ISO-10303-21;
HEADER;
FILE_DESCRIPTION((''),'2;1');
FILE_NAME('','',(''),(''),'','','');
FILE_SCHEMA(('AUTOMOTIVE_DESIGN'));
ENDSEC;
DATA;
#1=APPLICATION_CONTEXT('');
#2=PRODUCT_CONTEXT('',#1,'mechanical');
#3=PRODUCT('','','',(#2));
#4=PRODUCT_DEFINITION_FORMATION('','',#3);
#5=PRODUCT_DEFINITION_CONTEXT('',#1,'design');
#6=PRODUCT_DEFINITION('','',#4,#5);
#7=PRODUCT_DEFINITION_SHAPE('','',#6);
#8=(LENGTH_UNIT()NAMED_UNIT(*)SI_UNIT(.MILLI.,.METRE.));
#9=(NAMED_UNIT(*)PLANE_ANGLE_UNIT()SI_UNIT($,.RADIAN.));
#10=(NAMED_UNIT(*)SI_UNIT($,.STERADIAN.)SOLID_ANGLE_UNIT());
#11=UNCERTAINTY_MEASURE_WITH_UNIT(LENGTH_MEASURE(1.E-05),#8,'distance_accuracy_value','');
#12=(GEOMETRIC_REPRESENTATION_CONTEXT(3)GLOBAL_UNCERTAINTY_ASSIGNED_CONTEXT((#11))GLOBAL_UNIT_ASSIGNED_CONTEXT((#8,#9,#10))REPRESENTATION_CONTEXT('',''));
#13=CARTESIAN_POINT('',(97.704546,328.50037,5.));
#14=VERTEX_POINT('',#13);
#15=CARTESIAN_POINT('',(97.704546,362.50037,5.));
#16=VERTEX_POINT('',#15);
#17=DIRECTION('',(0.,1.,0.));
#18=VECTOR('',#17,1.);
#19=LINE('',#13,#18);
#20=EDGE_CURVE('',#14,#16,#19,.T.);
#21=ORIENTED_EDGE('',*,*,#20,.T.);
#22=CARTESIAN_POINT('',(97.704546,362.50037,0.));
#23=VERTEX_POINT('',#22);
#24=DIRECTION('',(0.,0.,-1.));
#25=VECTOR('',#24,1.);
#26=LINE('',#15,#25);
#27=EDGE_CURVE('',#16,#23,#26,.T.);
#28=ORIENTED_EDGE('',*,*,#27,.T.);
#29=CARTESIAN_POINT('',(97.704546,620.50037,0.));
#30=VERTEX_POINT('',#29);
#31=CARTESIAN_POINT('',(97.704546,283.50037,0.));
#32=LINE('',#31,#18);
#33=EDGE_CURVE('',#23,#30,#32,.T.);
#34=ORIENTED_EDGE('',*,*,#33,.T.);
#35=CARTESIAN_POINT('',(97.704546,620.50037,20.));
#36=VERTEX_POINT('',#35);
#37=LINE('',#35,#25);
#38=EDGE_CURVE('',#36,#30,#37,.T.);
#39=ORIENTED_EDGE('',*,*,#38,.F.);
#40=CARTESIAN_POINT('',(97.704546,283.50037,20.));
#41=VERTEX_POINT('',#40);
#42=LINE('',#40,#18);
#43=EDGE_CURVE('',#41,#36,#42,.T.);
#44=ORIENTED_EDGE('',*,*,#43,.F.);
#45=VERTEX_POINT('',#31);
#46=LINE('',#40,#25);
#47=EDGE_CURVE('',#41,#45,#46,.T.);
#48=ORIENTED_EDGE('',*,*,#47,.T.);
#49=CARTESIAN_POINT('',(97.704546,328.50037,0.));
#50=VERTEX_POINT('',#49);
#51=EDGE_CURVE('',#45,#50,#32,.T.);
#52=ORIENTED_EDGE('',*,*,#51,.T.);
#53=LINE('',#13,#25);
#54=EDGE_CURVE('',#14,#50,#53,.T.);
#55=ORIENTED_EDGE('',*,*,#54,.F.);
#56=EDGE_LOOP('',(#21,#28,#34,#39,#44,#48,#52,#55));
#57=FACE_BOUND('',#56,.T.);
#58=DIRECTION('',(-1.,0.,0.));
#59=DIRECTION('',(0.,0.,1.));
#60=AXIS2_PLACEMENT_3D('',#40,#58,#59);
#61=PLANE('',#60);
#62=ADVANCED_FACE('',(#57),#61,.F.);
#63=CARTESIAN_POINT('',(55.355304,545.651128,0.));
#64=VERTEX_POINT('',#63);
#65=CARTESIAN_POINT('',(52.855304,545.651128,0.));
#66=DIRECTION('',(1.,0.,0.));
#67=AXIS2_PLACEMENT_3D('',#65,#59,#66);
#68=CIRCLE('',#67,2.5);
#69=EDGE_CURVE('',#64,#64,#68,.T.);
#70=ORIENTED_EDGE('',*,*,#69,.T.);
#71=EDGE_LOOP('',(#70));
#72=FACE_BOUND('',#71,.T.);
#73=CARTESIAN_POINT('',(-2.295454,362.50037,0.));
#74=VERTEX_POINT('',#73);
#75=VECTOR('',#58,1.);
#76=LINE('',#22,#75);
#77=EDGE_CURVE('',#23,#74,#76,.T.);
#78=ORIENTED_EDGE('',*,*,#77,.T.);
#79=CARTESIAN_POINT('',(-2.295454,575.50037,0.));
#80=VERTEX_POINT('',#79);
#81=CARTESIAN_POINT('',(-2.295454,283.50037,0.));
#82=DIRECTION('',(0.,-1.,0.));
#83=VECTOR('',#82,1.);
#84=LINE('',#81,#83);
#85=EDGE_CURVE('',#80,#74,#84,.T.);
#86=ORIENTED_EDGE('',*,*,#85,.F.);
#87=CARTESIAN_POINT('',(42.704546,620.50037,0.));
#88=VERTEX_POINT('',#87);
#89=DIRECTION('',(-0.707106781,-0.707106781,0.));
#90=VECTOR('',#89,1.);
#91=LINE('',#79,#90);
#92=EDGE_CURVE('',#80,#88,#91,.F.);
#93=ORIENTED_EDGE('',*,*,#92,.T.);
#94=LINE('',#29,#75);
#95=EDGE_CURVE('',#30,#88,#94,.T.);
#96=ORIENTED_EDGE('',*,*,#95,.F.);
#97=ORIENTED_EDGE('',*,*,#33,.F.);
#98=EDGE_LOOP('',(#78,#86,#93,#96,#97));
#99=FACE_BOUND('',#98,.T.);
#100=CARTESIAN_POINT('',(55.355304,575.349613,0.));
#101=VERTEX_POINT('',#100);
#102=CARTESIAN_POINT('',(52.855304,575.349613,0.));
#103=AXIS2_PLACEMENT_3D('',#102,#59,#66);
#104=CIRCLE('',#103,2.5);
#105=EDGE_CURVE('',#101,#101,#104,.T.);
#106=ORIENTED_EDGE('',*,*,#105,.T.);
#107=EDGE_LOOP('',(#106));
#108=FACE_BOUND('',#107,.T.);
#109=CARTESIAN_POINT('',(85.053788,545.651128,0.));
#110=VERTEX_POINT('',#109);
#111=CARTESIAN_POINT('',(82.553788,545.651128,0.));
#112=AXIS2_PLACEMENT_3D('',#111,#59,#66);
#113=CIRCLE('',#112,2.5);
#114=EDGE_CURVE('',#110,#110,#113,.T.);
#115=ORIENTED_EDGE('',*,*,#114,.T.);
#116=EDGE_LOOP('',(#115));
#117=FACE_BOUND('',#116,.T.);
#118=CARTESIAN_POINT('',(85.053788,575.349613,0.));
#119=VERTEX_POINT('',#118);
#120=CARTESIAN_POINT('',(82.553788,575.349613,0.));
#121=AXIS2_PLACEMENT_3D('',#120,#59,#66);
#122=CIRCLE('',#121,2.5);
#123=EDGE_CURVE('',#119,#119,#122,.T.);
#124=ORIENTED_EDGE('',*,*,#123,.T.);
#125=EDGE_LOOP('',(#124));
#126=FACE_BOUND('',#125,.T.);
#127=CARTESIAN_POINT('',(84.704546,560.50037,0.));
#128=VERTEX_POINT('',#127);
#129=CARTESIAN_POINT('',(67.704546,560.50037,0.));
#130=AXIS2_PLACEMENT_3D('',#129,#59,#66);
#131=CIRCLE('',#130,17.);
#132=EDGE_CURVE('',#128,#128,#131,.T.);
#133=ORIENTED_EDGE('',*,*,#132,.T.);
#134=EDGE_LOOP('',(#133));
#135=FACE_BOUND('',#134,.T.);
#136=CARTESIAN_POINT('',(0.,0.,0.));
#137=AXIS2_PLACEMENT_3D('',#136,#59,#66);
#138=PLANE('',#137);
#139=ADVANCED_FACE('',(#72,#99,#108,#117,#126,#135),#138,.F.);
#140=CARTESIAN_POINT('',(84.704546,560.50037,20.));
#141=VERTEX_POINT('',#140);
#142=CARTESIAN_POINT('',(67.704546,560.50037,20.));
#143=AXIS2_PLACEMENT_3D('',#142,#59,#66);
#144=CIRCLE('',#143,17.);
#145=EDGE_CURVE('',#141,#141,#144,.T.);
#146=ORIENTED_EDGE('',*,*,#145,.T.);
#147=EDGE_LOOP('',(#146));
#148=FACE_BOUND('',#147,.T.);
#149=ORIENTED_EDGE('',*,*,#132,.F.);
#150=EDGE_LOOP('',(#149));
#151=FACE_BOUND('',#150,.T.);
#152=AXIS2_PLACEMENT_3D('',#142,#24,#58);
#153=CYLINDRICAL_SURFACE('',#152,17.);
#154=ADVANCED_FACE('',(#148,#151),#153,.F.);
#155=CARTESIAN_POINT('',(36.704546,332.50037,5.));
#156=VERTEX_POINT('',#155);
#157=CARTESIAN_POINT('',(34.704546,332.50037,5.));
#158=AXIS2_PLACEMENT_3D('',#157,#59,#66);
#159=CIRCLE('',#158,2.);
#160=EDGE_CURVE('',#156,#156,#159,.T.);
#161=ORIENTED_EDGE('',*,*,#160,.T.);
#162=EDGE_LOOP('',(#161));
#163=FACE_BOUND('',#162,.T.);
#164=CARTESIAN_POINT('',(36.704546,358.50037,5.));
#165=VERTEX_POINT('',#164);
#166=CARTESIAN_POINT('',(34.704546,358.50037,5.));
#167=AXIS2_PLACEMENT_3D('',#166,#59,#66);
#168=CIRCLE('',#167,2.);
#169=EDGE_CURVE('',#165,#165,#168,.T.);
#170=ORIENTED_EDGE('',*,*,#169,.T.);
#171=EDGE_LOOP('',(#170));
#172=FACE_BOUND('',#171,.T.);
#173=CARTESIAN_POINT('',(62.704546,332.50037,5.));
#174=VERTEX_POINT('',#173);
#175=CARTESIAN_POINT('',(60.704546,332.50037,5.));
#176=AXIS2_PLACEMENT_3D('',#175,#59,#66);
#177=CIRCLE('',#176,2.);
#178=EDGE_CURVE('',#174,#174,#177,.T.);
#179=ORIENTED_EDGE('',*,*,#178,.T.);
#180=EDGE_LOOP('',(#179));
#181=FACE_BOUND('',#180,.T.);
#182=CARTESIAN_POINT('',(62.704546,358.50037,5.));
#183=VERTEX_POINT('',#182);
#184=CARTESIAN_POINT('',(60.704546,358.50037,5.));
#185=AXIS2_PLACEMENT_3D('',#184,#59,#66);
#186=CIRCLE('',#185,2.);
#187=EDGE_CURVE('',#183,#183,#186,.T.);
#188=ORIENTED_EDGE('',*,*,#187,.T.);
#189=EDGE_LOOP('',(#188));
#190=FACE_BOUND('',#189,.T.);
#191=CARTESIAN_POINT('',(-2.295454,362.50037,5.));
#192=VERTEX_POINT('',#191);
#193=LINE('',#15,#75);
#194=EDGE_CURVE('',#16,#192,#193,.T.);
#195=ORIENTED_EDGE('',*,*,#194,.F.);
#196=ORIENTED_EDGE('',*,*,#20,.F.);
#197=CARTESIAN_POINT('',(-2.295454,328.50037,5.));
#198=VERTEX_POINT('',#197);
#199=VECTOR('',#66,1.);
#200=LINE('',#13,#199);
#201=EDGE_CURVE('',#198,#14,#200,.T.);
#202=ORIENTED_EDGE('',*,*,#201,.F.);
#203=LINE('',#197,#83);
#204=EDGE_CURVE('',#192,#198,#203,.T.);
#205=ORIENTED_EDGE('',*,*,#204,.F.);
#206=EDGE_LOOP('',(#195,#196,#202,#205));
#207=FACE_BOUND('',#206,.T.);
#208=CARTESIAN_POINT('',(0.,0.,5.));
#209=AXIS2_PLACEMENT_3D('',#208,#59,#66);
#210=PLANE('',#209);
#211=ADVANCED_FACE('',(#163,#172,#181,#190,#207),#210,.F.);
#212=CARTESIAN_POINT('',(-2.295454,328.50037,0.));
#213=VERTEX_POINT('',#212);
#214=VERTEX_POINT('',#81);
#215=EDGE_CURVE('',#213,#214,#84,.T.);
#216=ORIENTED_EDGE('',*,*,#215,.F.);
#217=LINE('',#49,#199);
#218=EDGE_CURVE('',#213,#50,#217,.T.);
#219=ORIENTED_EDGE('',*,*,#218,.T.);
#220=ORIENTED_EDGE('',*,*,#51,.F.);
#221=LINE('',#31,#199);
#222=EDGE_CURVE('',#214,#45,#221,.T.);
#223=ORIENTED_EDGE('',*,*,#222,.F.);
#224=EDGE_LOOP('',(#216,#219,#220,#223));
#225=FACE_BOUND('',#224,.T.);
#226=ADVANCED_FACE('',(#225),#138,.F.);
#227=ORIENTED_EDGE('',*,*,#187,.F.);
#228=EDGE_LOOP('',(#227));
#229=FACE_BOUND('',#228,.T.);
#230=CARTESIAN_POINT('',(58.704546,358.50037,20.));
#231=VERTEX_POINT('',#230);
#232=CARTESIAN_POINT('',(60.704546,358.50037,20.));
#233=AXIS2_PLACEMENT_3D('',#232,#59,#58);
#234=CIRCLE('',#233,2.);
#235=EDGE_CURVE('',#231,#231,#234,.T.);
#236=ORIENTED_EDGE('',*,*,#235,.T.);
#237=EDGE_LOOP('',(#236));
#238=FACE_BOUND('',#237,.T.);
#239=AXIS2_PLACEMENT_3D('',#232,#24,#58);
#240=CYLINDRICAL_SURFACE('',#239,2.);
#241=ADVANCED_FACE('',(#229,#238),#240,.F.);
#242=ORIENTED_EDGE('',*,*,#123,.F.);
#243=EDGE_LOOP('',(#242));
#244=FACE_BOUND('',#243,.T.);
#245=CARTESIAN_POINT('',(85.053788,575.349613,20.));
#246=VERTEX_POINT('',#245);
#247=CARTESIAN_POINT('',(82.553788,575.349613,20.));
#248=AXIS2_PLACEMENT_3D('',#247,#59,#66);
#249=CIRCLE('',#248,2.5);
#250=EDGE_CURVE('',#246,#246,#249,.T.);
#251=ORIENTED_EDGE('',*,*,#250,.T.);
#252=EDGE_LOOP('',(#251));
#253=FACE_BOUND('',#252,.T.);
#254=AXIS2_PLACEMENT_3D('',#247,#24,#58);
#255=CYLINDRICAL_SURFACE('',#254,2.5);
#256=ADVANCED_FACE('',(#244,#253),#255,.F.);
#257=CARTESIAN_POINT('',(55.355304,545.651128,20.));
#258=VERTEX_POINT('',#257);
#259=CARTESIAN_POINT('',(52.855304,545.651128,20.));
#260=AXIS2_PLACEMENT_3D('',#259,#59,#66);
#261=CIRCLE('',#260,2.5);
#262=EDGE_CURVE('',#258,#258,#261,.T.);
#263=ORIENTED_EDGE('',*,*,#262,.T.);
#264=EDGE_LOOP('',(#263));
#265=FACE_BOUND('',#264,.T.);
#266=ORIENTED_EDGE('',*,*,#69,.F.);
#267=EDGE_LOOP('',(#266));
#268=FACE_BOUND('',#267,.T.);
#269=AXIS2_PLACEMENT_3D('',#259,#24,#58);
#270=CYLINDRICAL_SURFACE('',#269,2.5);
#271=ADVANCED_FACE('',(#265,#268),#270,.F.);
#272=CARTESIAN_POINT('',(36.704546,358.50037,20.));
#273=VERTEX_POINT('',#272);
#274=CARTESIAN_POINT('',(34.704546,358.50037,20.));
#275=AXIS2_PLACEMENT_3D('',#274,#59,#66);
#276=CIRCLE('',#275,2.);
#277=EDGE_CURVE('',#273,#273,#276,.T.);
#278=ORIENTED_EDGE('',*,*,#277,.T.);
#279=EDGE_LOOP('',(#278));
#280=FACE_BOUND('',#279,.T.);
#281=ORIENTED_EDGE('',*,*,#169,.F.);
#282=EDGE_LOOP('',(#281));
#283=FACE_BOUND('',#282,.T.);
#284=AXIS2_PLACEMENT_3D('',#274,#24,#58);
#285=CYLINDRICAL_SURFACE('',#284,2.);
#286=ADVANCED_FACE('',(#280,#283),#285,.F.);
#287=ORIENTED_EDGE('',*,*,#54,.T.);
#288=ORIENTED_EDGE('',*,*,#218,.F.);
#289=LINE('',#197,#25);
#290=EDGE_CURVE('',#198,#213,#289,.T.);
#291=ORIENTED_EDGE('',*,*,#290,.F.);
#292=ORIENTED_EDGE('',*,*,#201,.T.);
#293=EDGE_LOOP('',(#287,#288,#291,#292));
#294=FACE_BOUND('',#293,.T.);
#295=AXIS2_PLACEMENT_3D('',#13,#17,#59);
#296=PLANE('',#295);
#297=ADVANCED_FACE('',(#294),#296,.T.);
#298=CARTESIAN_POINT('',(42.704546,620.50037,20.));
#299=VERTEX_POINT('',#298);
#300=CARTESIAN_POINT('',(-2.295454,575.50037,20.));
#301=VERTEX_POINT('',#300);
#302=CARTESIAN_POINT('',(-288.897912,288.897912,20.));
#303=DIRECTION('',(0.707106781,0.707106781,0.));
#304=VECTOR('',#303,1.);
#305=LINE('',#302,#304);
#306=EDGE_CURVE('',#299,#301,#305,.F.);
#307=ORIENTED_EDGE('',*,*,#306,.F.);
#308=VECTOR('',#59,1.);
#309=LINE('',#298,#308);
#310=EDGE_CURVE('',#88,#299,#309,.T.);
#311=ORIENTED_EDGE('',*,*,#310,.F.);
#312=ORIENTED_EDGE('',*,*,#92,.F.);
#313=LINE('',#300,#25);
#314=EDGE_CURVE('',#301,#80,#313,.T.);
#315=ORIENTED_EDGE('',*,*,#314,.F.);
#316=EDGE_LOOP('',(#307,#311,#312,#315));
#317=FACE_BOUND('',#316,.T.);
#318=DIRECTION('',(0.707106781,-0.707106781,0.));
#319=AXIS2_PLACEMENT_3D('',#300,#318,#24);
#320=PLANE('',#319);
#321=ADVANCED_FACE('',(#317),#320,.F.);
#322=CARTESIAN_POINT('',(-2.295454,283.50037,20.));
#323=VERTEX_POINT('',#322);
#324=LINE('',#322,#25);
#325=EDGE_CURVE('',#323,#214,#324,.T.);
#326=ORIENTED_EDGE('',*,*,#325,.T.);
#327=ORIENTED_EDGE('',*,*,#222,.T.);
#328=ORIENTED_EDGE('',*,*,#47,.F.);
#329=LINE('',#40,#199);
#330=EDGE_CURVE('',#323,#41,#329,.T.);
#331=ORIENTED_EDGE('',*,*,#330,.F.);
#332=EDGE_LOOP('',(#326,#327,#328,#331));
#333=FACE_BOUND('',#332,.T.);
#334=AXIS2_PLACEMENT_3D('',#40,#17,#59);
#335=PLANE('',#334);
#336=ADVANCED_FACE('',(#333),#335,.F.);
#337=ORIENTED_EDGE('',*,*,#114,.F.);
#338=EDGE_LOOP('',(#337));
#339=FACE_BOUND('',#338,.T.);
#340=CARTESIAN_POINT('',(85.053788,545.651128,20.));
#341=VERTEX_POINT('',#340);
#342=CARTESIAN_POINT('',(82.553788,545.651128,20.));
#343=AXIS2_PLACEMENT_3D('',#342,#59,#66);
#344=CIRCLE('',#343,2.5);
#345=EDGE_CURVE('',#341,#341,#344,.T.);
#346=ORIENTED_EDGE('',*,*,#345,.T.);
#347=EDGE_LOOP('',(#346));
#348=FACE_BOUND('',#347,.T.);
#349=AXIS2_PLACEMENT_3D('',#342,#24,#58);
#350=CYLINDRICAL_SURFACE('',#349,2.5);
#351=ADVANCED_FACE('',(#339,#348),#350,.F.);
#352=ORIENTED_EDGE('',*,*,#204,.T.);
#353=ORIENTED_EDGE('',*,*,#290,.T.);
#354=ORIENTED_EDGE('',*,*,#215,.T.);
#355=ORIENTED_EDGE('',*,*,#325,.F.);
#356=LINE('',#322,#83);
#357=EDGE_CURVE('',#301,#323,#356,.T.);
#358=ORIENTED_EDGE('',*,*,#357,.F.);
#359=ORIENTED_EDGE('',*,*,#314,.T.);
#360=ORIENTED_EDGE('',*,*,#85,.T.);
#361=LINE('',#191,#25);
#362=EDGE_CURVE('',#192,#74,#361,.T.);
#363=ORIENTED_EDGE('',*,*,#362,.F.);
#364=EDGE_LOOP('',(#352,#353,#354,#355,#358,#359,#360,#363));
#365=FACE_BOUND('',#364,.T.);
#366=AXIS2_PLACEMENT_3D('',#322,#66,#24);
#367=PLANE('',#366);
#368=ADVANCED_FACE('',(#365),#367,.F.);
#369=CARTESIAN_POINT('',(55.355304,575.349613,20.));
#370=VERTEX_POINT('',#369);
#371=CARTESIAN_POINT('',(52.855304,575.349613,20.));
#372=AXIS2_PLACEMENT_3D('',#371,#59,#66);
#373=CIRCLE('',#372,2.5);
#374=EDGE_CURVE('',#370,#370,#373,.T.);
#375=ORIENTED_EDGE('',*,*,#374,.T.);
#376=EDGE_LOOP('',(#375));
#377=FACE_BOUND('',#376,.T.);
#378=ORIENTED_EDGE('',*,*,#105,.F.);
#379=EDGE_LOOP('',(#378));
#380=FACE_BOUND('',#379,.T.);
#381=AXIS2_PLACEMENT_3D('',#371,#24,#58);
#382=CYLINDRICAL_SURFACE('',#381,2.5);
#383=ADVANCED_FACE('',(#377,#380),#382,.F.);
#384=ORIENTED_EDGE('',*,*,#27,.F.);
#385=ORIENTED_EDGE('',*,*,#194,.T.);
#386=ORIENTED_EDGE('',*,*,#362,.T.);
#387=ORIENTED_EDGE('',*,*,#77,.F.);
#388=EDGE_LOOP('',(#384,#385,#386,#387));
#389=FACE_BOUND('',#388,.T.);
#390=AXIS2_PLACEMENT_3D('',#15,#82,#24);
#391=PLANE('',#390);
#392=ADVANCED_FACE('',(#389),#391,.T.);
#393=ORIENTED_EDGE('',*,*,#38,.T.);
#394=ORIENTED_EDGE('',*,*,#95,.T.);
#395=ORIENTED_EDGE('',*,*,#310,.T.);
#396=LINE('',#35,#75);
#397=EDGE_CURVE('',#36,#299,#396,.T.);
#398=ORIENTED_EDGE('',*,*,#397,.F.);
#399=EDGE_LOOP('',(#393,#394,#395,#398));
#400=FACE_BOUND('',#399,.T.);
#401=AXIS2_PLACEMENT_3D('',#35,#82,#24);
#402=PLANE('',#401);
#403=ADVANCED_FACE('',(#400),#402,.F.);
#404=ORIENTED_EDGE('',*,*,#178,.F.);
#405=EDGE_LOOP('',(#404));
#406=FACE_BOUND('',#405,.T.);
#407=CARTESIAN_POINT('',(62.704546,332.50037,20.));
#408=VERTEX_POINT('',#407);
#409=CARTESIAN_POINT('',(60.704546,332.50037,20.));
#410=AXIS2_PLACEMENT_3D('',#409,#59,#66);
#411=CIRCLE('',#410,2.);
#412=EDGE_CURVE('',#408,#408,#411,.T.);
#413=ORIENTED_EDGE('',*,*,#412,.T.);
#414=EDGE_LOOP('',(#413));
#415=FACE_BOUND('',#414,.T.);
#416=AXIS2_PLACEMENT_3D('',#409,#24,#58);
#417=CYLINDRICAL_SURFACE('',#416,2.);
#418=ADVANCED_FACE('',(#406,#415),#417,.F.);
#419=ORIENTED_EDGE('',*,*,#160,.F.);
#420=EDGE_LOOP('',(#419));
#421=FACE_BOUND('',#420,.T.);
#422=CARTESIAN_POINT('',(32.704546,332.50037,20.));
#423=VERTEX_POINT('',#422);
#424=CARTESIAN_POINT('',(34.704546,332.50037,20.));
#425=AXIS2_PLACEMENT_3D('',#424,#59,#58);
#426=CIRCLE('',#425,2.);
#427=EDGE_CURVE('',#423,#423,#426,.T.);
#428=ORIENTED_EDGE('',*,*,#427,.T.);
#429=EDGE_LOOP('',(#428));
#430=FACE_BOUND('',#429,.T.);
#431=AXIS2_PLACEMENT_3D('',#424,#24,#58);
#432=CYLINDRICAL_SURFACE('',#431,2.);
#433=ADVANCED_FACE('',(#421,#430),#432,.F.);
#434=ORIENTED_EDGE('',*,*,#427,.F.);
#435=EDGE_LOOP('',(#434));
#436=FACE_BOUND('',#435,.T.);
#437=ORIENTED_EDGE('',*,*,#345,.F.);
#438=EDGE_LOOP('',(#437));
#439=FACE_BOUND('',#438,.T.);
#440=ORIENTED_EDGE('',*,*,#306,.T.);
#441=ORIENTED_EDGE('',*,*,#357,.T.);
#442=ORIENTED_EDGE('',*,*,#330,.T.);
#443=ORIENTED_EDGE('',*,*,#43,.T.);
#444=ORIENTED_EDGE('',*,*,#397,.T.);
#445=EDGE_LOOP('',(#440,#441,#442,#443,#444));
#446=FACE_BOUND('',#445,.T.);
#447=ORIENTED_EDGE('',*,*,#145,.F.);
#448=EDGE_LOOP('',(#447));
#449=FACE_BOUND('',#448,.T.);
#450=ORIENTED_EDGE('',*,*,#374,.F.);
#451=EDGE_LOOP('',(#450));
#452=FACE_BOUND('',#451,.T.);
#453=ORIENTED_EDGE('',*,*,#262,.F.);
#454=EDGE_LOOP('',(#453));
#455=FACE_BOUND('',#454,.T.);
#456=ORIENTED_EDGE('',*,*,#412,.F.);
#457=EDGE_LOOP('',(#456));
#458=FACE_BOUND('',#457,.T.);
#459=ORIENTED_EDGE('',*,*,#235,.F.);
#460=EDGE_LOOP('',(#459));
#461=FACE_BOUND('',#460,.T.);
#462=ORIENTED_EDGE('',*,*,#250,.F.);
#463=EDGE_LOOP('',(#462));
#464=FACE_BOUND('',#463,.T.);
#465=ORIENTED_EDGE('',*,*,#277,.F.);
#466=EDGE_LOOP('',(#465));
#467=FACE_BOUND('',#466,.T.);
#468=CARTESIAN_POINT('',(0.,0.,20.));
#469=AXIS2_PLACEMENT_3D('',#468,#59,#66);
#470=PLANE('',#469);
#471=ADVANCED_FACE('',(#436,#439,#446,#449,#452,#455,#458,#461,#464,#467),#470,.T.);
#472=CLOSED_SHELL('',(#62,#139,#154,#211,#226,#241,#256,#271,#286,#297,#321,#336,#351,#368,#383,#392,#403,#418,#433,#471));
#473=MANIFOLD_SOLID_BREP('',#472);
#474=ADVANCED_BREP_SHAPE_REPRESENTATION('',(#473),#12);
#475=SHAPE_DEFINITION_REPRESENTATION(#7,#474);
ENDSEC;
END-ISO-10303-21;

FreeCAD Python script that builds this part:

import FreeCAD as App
import Part
import Sketcher


def edges_at(feature, points):
    """Names of the edges that pass closest to the given points."""
    edges = feature.Shape.Edges
    near = lambda p: min(range(len(edges)), key=lambda i: edges[i].distToShape(Part.Vertex(*p))[0])
    return sorted({f"Edge{near(p) + 1}" for p in points})


def add_polygon(sketch, points):
    """Adds a closed chain of lines whose ends are joined by coincident constraints."""
    first, n = sketch.GeometryCount, len(points)
    for a, b in zip(points, points[1:] + points[:1]):
        sketch.addGeometry(Part.LineSegment(App.Vector(*a, 0), App.Vector(*b, 0)), False)
    for i in range(n):
        sketch.addConstraint(Sketcher.Constraint("Coincident", first + i, 2, first + (i + 1) % n, 1))

doc = App.newDocument("Part")
body = doc.addObject("PartDesign::Body", "Body")

# Sketch on XY plane
sketch1 = doc.addObject("Sketcher::SketchObject", "Sketch")
body.addObject(sketch1)
sketch1.AttachmentSupport = (doc.XY_Plane, [""])
sketch1.MapMode = "FlatFace"
add_polygon(sketch1, [(-2.3, 620.5), (-2.3, 283.5), (97.7, 283.5), (97.7, 620.5)])  # lines 0-3
sketch1.addGeometry(Part.Circle(App.Vector(34.7, 332.5, 0), App.Vector(0, 0, 1), 2), False)  # 4
sketch1.addGeometry(Part.Circle(App.Vector(34.7, 358.5, 0), App.Vector(0, 0, 1), 2), False)  # 5
sketch1.addGeometry(Part.Circle(App.Vector(60.7, 332.5, 0), App.Vector(0, 0, 1), 2), False)  # 6
sketch1.addGeometry(Part.Circle(App.Vector(60.7, 358.5, 0), App.Vector(0, 0, 1), 2), False)  # 7
sketch1.addGeometry(Part.Circle(App.Vector(52.9, 545.7, 0), App.Vector(0, 0, 1), 2.5), False)  # 8
sketch1.addGeometry(Part.Circle(App.Vector(52.9, 575.3, 0), App.Vector(0, 0, 1), 2.5), False)  # 9
sketch1.addGeometry(Part.Circle(App.Vector(67.7, 560.5, 0), App.Vector(0, 0, 1), 17), False)  # 10
sketch1.addGeometry(Part.Circle(App.Vector(82.6, 545.7, 0), App.Vector(0, 0, 1), 2.5), False)  # 11
sketch1.addGeometry(Part.Circle(App.Vector(82.6, 575.3, 0), App.Vector(0, 0, 1), 2.5), False)  # 12
sketch1.addConstraint([
    Sketcher.Constraint("Vertical", 0),
    Sketcher.Constraint("Horizontal", 1),
    Sketcher.Constraint("Vertical", 2),
    Sketcher.Constraint("Horizontal", 3),
    Sketcher.Constraint("Equal", 4, 5),
    Sketcher.Constraint("Equal", 5, 6),
    Sketcher.Constraint("Equal", 6, 7),
    Sketcher.Constraint("Equal", 8, 9),
    Sketcher.Constraint("Equal", 9, 11),
    Sketcher.Constraint("Equal", 11, 12),
    Sketcher.Constraint("Horizontal", 4, 3, 6, 3),
    Sketcher.Constraint("Horizontal", 5, 3, 7, 3),
    Sketcher.Constraint("Horizontal", 8, 3, 11, 3),
    Sketcher.Constraint("Horizontal", 9, 3, 12, 3),
    Sketcher.Constraint("Vertical", 4, 3, 5, 3),
    Sketcher.Constraint("Vertical", 6, 3, 7, 3),
    Sketcher.Constraint("Vertical", 8, 3, 9, 3),
    Sketcher.Constraint("Vertical", 11, 3, 12, 3),
    Sketcher.Constraint("Diameter", 4, 4.0),
    Sketcher.Constraint("Diameter", 8, 5.0),
    Sketcher.Constraint("Diameter", 10, 34.0),
    Sketcher.Constraint("DistanceX", 1, 1, 1, 2, 100.0),
    Sketcher.Constraint("DistanceY", 0, 2, 0, 1, 337.0),
    Sketcher.Constraint("DistanceY", 4, 3, 5, 3, 26.0),
    Sketcher.Constraint("DistanceX", 4, 3, 6, 3, 26.0),
    Sketcher.Constraint("DistanceX", 7, 3, 10, 3, 7.0),
    Sketcher.Constraint("DistanceY", 7, 3, 10, 3, 202.0),
    Sketcher.Constraint("DistanceX", 0, 2, 4, 3, 37.0),
    Sketcher.Constraint("DistanceY", 0, 2, 4, 3, 49.0),
    Sketcher.Constraint("DistanceY", -1, 1, 4, 3, 332.50037),
    Sketcher.Constraint("DistanceY", -1, 1, 8, 3, 545.651128),
    Sketcher.Constraint("DistanceX", -1, 1, 11, 3, 82.553788),
    Sketcher.Constraint("DistanceX", -1, 1, 4, 3, 34.704546),
    Sketcher.Constraint("DistanceX", -1, 1, 8, 3, 52.855304),
    Sketcher.Constraint("DistanceY", -1, 1, 9, 3, 575.349613),
])
pad1 = doc.addObject("PartDesign::Pad", "Pad")
body.addObject(pad1)
pad1.Profile = sketch1
pad1.Length = 20
doc.recompute()

chamfer = doc.addObject("PartDesign::Chamfer", "Chamfer")
body.addObject(chamfer)
chamfer.Base = (pad1, edges_at(pad1, [(-2.295, 620.5, 10)]))
chamfer.Size = 45

# Sketch on XY plane
sketch2 = doc.addObject("Sketcher::SketchObject", "Sketch001")
body.addObject(sketch2)
sketch2.AttachmentSupport = (doc.XY_Plane, [""])
sketch2.MapMode = "FlatFace"
add_polygon(sketch2, [(-2, 363), (-2, 329), (98, 329), (98, 363)])  # lines 0-3
sketch2.addConstraint([
    Sketcher.Constraint("Vertical", 0),
    Sketcher.Constraint("Horizontal", 1),
    Sketcher.Constraint("Vertical", 2),
    Sketcher.Constraint("Horizontal", 3),
    Sketcher.Constraint("DistanceX", 1, 1, 1, 2, 100.0),
    Sketcher.Constraint("DistanceY", 0, 2, 0, 1, 34.0),
    Sketcher.Constraint("DistanceY", -1, 1, 0, 2, 328.50037),
    Sketcher.Constraint("DistanceX", 0, 2, -1, 1, 2.295454),
])
pocket1 = doc.addObject("PartDesign::Pocket", "Pocket")
body.addObject(pocket1)
pocket1.Profile = sketch2
pocket1.Length = 5
pocket1.Reversed = True

doc.recompute()
